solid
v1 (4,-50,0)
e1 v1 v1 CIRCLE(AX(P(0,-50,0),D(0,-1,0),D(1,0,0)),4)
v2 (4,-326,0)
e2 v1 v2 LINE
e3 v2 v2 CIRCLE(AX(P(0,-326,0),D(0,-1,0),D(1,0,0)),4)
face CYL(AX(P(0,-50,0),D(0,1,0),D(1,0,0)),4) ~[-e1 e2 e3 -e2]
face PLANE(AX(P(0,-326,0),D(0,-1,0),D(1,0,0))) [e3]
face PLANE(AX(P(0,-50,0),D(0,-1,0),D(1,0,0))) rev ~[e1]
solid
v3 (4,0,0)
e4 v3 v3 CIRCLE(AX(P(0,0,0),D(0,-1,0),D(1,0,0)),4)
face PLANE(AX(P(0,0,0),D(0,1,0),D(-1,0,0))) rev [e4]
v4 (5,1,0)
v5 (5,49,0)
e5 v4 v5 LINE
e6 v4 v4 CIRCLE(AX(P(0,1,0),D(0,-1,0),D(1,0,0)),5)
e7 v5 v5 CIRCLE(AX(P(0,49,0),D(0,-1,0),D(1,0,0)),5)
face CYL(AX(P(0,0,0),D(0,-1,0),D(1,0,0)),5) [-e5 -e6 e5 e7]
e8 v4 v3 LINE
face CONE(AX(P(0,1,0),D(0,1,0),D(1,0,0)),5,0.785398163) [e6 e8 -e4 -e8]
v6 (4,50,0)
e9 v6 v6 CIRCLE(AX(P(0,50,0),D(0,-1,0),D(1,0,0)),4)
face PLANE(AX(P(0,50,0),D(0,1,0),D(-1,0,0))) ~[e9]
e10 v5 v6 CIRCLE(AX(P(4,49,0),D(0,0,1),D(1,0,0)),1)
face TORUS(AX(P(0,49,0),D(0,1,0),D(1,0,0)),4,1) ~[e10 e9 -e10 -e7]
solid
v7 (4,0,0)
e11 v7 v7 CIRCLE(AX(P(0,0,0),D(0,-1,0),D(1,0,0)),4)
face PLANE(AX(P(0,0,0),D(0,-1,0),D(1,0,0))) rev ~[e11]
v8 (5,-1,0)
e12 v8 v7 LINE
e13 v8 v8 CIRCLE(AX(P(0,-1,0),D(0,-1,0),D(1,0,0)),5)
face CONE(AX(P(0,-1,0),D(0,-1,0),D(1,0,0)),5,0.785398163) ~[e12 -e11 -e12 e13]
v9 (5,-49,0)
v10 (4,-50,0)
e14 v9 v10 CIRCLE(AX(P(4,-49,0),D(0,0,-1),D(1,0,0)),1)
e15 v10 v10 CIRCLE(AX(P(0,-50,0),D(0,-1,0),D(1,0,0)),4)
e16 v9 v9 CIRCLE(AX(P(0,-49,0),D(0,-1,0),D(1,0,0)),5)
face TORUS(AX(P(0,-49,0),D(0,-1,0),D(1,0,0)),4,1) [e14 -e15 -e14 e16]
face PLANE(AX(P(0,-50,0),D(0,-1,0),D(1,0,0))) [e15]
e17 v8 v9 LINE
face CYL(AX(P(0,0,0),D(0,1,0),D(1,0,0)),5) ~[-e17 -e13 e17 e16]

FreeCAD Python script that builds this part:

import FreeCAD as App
import Part
import Sketcher
Q = App.Units.Quantity


def edges_at(feature, points):
    """Names of the edges that pass closest to the given points."""
    edges = feature.Shape.Edges
    near = lambda p: min(range(len(edges)), key=lambda i: edges[i].distToShape(Part.Vertex(*p))[0])
    return sorted({f"Edge{near(p) + 1}" for p in points})

doc = App.newDocument("Part")
params = doc.addObject("Spreadsheet::Sheet", "Params")
for row, (alias, value) in enumerate([
    ("sketch1_diameter", "10 mm"),
    ("pad1_length", "50 mm"),
    ("fillet_radius", "1 mm"),
    ("chamfer_size", "1 mm"),
    ("sketch2_diameter", "8 mm"),
    ("pad2_length", "276 mm"),
], start=1):
    params.set(f"A{row}", alias)
    params.set(f"B{row}", "=" + value)
    params.setAlias(f"B{row}", alias)

body = doc.addObject("PartDesign::Body", "Body")

# Sketch on XZ plane
sketch1 = body.newObject("Sketcher::SketchObject", "Sketch")
sketch1.AttachmentSupport = (doc.getObject("XZ_Plane"), [""])
sketch1.MapMode = "FlatFace"
sketch1.addGeometry(Part.Circle(App.Vector(0, 0, 0), App.Vector(0, 0, 1), 5), False)
sketch1.addConstraint([
    Sketcher.Constraint("Coincident", 0, 3, -1, 1),
    Sketcher.Constraint("Diameter", 0, Q("10 mm")),
])
sketch1.setExpression("Constraints[1]", "Params.sketch1_diameter")
pad1 = body.newObject("PartDesign::Pad", "Pad")
pad1.Profile = sketch1
pad1.setExpression("Length", "Params.pad1_length")
doc.recompute()

fillet = body.newObject("PartDesign::Fillet", "Fillet")
fillet.Base = (pad1, edges_at(pad1, [(-5, -50, 0)]))
fillet.setExpression("Radius", "Params.fillet_radius")
doc.recompute()

chamfer = body.newObject("PartDesign::Chamfer", "Chamfer")
chamfer.Base = (fillet, edges_at(fillet, [(-5, 0, 0)]))
chamfer.setExpression("Size", "Params.chamfer_size")
body2 = doc.addObject("PartDesign::Body", "Body001")
doc.recompute()

mirroring = doc.addObject("Part::Mirroring", "Mirroring")
mirroring.Source = body
mirroring.Base = App.Vector(0, 0, 0)
mirroring.Normal = App.Vector(0, -1, 0)
body2.BaseFeature = mirroring
doc.recompute()
body3 = doc.addObject("PartDesign::Body", "Body002")

# Sketch on XZ plane
sketch2 = body3.newObject("Sketcher::SketchObject", "Sketch001")
sketch2.AttachmentSupport = (doc.getObject("XZ_Plane002"), [""])
sketch2.MapMode = "FlatFace"
sketch2.AttachmentOffset = App.Placement(App.Vector(0, 0, 50), App.Rotation())
sketch2.addGeometry(Part.Circle(App.Vector(0, 0, 0), App.Vector(0, 0, 1), 4), False)
sketch2.addConstraint([
    Sketcher.Constraint("Coincident", 0, 3, -1, 1),
    Sketcher.Constraint("Diameter", 0, Q("8 mm")),
])
sketch2.setExpression("Constraints[1]", "Params.sketch2_diameter")
pad2 = body3.newObject("PartDesign::Pad", "Pad001")
pad2.Profile = sketch2
pad2.setExpression("Length", "Params.pad2_length")
mirroring.Visibility = False

doc.recompute()
